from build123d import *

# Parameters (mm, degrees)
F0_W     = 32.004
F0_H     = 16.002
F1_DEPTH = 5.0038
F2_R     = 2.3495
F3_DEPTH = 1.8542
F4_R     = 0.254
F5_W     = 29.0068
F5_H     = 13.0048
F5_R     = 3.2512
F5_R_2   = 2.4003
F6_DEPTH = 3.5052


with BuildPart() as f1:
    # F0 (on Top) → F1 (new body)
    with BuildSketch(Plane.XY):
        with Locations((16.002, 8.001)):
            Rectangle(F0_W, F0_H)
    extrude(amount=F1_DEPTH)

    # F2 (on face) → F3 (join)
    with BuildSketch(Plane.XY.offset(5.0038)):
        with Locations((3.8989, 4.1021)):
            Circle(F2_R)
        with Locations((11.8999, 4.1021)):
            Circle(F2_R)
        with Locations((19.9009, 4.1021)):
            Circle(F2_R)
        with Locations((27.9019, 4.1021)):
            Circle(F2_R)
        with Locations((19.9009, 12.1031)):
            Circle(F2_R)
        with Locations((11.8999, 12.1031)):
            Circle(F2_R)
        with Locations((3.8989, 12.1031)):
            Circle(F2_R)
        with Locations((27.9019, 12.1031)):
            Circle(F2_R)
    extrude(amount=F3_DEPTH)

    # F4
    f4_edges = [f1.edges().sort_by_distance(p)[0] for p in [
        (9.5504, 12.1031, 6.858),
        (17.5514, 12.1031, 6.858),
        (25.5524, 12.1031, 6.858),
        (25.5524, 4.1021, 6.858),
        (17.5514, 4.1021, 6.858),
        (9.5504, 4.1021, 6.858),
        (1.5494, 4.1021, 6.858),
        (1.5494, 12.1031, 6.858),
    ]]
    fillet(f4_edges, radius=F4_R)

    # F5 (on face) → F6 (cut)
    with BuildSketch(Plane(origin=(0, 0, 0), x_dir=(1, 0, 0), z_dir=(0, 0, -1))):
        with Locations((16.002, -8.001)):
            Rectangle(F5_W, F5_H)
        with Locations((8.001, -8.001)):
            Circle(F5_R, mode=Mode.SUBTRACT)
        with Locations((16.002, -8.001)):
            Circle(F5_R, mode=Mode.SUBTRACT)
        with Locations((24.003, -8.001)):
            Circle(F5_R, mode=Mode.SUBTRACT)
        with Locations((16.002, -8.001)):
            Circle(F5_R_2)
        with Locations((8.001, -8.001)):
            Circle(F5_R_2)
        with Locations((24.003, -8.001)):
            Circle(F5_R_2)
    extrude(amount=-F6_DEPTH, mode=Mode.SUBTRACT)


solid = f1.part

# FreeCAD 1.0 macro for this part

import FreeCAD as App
import Part
import Sketcher
from FreeCAD import Vector
Q = App.Units.Quantity


def edges_at(feature, points):
    """Names of the edges that pass closest to the given points."""
    edges = feature.Shape.Edges
    near = lambda p: min(range(len(edges)), key=lambda i: edges[i].distToShape(Part.Vertex(*p))[0])
    return sorted({f"Edge{near(p) + 1}" for p in points})

doc = App.newDocument("Part")
body = doc.addObject("PartDesign::Body", "Body")

# Sketch on XY plane
sketch1 = body.newObject("Sketcher::SketchObject", "Sketch")
sketch1.AttachmentSupport = (doc.getObject("XY_Plane"), [""])
sketch1.MapMode = "FlatFace"
sketch1.addGeometry([
    Part.LineSegment(Vector(0, 16.002, 0), Vector(0, 0, 0)),
    Part.LineSegment(Vector(0, 0, 0), Vector(32.004, 0, 0)),
    Part.LineSegment(Vector(32.004, 0, 0), Vector(32.004, 16.002, 0)),
    Part.LineSegment(Vector(32.004, 16.002, 0), Vector(0, 16.002, 0)),
], False)
sketch1.addConstraint([
    Sketcher.Constraint("Coincident", 0, 2, 1, 1),
    Sketcher.Constraint("Coincident", 1, 2, 2, 1),
    Sketcher.Constraint("Coincident", 2, 2, 3, 1),
    Sketcher.Constraint("Coincident", 3, 2, 0, 1),
    Sketcher.Constraint("Vertical", 0),
    Sketcher.Constraint("Horizontal", 1),
    Sketcher.Constraint("Vertical", 2),
    Sketcher.Constraint("Horizontal", 3),
    Sketcher.Constraint("Coincident", 0, 2, -1, 1),
    Sketcher.Constraint("DistanceX", 1, 1, 1, 2, Q("1.26 in")),
    Sketcher.Constraint("DistanceY", 0, 2, 0, 1, Q("0.63 in")),
])
pad1 = body.newObject("PartDesign::Pad", "Pad")
pad1.Profile = sketch1
pad1.Length = Q("0.197 in")

# Sketch on XY plane
sketch2 = body.newObject("Sketcher::SketchObject", "Sketch001")
sketch2.AttachmentSupport = (doc.getObject("XY_Plane"), [""])
sketch2.MapMode = "FlatFace"
sketch2.AttachmentOffset = App.Placement(Vector(0, 0, 0.197 * 25.4), App.Rotation())
sketch2.addGeometry([
    Part.Circle(Vector(3.8989, 4.1021, 0), Vector(0, 0, 1), 2.3495),  # 0
    Part.Circle(Vector(11.8999, 4.1021, 0), Vector(0, 0, 1), 2.3495),  # 1
    Part.Circle(Vector(19.9009, 4.1021, 0), Vector(0, 0, 1), 2.3495),  # 2
    Part.Circle(Vector(27.9019, 4.1021, 0), Vector(0, 0, 1), 2.3495),  # 3
    Part.Circle(Vector(19.9009, 12.1031, 0), Vector(0, 0, 1), 2.3495),  # 4
    Part.Circle(Vector(11.8999, 12.1031, 0), Vector(0, 0, 1), 2.3495),  # 5
    Part.Circle(Vector(3.8989, 12.1031, 0), Vector(0, 0, 1), 2.3495),  # 6
    Part.Circle(Vector(27.9019, 12.1031, 0), Vector(0, 0, 1), 2.3495),  # 7
], False)
sketch2.addConstraint([
    Sketcher.Constraint("Equal", 0, 1),
    Sketcher.Constraint("Equal", 1, 2),
    Sketcher.Constraint("Equal", 2, 3),
    Sketcher.Constraint("Equal", 3, 4),
    Sketcher.Constraint("Equal", 4, 5),
    Sketcher.Constraint("Equal", 5, 6),
    Sketcher.Constraint("Equal", 6, 7),
    Sketcher.Constraint("Horizontal", 0, 3, 1, 3),
    Sketcher.Constraint("Horizontal", 1, 3, 2, 3),
    Sketcher.Constraint("Horizontal", 2, 3, 3, 3),
    Sketcher.Constraint("Horizontal", 4, 3, 5, 3),
    Sketcher.Constraint("Horizontal", 5, 3, 6, 3),
    Sketcher.Constraint("Horizontal", 6, 3, 7, 3),
    Sketcher.Constraint("Vertical", 2, 3, 4, 3),
    Sketcher.Constraint("Vertical", 1, 3, 5, 3),
    Sketcher.Constraint("Vertical", 0, 3, 6, 3),
    Sketcher.Constraint("Vertical", 3, 3, 7, 3),
    Sketcher.Constraint("Diameter", 0, Q("0.185 in")),
    Sketcher.Constraint("DistanceX", 0, 3, 2, 3, Q("0.63 in")),
    Sketcher.Constraint("DistanceX", 1, 3, 3, 3, Q("0.63 in")),
    Sketcher.Constraint("DistanceX", 0, 3, 1, 3, Q("0.315 in")),
    Sketcher.Constraint("DistanceY", 2, 3, 4, 3, Q("0.315 in")),
    Sketcher.Constraint("DistanceX", -1, 1, 0, 3, Q("0.1535 in")),
    Sketcher.Constraint("DistanceY", -1, 1, 0, 3, Q("0.1615 in")),
])
pad2 = body.newObject("PartDesign::Pad", "Pad001")
pad2.Profile = sketch2
pad2.Length = Q("0.073 in")
doc.recompute()

fillet = body.newObject("PartDesign::Fillet", "Fillet")
fillet.Base = (pad2, edges_at(pad2, [
    (9.55, 12.103, 6.858),
    (17.551, 12.103, 6.858),
    (25.552, 12.103, 6.858),
    (25.552, 4.102, 6.858),
    (17.551, 4.102, 6.858),
    (9.55, 4.102, 6.858),
    (1.549, 4.102, 6.858),
    (1.549, 12.103, 6.858),
]))
fillet.Radius = Q("0.01 in")

# Sketch on XY plane
sketch3 = body.newObject("Sketcher::SketchObject", "Sketch002")
sketch3.AttachmentSupport = (doc.getObject("XY_Plane"), [""])
sketch3.MapMode = "FlatFace"
sketch3.addGeometry([
    Part.LineSegment(Vector(1.4986, 1.4986, 0), Vector(1.4986, 14.5034, 0)),  # 0
    Part.LineSegment(Vector(1.4986, 14.5034, 0), Vector(30.5054, 14.5034, 0)),  # 1
    Part.LineSegment(Vector(30.5054, 14.5034, 0), Vector(30.5054, 1.4986, 0)),  # 2
    Part.LineSegment(Vector(30.5054, 1.4986, 0), Vector(1.4986, 1.4986, 0)),  # 3
    Part.Circle(Vector(8.001, 8.001, 0), Vector(0, 0, 1), 3.2512),  # 4
    Part.Circle(Vector(16.002, 8.001, 0), Vector(0, 0, 1), 3.2512),  # 5
    Part.Circle(Vector(24.003, 8.001, 0), Vector(0, 0, 1), 3.2512),  # 6
    Part.Circle(Vector(16.002, 8.001, 0), Vector(0, 0, 1), 2.4003),  # 7
    Part.Circle(Vector(8.001, 8.001, 0), Vector(0, 0, 1), 2.4003),  # 8
    Part.Circle(Vector(24.003, 8.001, 0), Vector(0, 0, 1), 2.4003),  # 9
], False)
sketch3.addConstraint([
    Sketcher.Constraint("Coincident", 0, 2, 1, 1),
    Sketcher.Constraint("Coincident", 1, 2, 2, 1),
    Sketcher.Constraint("Coincident", 2, 2, 3, 1),
    Sketcher.Constraint("Coincident", 3, 2, 0, 1),
    Sketcher.Constraint("Vertical", 0),
    Sketcher.Constraint("Horizontal", 1),
    Sketcher.Constraint("Vertical", 2),
    Sketcher.Constraint("Horizontal", 3),
    Sketcher.Constraint("Coincident", 7, 3, 5, 3),
    Sketcher.Constraint("Coincident", 8, 3, 4, 3),
    Sketcher.Constraint("Coincident", 9, 3, 6, 3),
    Sketcher.Constraint("Equal", 4, 5),
    Sketcher.Constraint("Equal", 5, 6),
    Sketcher.Constraint("Equal", 7, 8),
    Sketcher.Constraint("Equal", 8, 9),
    Sketcher.Constraint("Horizontal", 4, 3, 5, 3),
    Sketcher.Constraint("Horizontal", 5, 3, 6, 3),
    Sketcher.Constraint("Diameter", 4, Q("0.256 in")),
    Sketcher.Constraint("Diameter", 7, Q("0.189 in")),
    Sketcher.Constraint("DistanceX", 1, 1, 1, 2, Q("1.142 in")),
    Sketcher.Constraint("DistanceY", 0, 1, 0, 2, Q("0.512 in")),
    Sketcher.Constraint("DistanceX", -1, 1, 5, 3, Q("0.63 in")),
    Sketcher.Constraint("DistanceX", 4, 3, 6, 3, Q("0.63 in")),
    Sketcher.Constraint("DistanceX", -1, 1, 4, 3, Q("0.315 in")),
    Sketcher.Constraint("DistanceY", -1, 1, 4, 3, Q("0.315 in")),
    Sketcher.Constraint("DistanceX", -1, 1, 0, 2, Q("0.059 in")),
    Sketcher.Constraint("DistanceY", -1, 1, 0, 2, Q("0.571 in")),
])
pocket1 = body.newObject("PartDesign::Pocket", "Pocket")
pocket1.Profile = sketch3
pocket1.Length = Q("0.138 in")
pocket1.Reversed = True

doc.recompute()
